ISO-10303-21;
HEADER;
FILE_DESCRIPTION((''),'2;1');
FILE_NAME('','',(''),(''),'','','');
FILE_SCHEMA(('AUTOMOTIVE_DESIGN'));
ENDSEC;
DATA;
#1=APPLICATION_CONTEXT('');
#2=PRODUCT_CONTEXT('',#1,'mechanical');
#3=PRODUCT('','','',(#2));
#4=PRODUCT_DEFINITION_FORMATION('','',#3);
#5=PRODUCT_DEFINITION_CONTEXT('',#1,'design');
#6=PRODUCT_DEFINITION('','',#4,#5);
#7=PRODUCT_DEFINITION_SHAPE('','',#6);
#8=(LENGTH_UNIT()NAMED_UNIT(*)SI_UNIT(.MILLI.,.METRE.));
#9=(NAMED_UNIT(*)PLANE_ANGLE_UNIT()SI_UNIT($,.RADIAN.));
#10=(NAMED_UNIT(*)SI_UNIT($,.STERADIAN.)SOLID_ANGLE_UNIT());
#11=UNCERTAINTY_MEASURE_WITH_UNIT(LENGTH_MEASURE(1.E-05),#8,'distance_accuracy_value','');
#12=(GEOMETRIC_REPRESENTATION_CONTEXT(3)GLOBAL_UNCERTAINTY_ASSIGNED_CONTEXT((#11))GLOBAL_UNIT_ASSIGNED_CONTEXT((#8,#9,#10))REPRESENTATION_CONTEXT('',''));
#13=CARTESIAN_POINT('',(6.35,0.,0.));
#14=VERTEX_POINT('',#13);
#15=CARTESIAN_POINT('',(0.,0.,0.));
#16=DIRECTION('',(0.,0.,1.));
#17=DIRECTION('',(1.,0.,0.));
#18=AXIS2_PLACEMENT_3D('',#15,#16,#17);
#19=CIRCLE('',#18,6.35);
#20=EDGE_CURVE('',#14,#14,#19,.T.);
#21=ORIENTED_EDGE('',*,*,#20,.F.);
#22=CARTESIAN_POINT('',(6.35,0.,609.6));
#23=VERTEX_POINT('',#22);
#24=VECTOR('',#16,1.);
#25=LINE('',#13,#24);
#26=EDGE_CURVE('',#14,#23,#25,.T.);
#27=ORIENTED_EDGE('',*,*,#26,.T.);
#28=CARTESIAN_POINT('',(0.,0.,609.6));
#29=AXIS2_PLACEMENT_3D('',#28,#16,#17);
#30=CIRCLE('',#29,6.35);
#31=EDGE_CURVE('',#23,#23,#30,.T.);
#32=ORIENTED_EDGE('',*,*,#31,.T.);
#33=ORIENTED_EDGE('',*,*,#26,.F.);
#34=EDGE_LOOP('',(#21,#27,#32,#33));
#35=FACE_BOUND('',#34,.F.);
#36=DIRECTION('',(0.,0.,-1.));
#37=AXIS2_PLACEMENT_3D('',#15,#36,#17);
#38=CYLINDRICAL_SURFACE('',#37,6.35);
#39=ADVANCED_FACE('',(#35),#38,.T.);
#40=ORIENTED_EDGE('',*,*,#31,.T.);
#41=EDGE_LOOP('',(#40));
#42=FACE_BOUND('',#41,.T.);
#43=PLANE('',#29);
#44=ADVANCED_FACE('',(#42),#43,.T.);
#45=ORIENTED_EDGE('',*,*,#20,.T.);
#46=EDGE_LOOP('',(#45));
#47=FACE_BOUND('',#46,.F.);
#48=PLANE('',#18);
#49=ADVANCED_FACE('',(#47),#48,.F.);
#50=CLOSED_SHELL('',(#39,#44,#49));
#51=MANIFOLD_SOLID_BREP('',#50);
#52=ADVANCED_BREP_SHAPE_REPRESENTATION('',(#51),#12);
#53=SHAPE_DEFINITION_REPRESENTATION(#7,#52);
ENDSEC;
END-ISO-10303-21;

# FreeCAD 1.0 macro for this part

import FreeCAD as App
import Part
import Sketcher
Q = App.Units.Quantity

doc = App.newDocument("Part")
body = doc.addObject("PartDesign::Body", "Body")

# Sketch on XY plane
sketch1 = body.newObject("Sketcher::SketchObject", "Sketch")
sketch1.AttachmentSupport = (doc.getObject("XY_Plane"), [""])
sketch1.MapMode = "FlatFace"
sketch1.addGeometry(Part.Circle(App.Vector(0, 0, 0), App.Vector(0, 0, 1), 6), False)
sketch1.addConstraint(Sketcher.Constraint("Coincident", 0, 3, -1, 1))
sketch1.addConstraint(Sketcher.Constraint("Diameter", 0, Q("0.5 in")))
pad1 = body.newObject("PartDesign::Pad", "Pad")
pad1.Profile = sketch1
pad1.Length = Q("24 in")

doc.recompute()
